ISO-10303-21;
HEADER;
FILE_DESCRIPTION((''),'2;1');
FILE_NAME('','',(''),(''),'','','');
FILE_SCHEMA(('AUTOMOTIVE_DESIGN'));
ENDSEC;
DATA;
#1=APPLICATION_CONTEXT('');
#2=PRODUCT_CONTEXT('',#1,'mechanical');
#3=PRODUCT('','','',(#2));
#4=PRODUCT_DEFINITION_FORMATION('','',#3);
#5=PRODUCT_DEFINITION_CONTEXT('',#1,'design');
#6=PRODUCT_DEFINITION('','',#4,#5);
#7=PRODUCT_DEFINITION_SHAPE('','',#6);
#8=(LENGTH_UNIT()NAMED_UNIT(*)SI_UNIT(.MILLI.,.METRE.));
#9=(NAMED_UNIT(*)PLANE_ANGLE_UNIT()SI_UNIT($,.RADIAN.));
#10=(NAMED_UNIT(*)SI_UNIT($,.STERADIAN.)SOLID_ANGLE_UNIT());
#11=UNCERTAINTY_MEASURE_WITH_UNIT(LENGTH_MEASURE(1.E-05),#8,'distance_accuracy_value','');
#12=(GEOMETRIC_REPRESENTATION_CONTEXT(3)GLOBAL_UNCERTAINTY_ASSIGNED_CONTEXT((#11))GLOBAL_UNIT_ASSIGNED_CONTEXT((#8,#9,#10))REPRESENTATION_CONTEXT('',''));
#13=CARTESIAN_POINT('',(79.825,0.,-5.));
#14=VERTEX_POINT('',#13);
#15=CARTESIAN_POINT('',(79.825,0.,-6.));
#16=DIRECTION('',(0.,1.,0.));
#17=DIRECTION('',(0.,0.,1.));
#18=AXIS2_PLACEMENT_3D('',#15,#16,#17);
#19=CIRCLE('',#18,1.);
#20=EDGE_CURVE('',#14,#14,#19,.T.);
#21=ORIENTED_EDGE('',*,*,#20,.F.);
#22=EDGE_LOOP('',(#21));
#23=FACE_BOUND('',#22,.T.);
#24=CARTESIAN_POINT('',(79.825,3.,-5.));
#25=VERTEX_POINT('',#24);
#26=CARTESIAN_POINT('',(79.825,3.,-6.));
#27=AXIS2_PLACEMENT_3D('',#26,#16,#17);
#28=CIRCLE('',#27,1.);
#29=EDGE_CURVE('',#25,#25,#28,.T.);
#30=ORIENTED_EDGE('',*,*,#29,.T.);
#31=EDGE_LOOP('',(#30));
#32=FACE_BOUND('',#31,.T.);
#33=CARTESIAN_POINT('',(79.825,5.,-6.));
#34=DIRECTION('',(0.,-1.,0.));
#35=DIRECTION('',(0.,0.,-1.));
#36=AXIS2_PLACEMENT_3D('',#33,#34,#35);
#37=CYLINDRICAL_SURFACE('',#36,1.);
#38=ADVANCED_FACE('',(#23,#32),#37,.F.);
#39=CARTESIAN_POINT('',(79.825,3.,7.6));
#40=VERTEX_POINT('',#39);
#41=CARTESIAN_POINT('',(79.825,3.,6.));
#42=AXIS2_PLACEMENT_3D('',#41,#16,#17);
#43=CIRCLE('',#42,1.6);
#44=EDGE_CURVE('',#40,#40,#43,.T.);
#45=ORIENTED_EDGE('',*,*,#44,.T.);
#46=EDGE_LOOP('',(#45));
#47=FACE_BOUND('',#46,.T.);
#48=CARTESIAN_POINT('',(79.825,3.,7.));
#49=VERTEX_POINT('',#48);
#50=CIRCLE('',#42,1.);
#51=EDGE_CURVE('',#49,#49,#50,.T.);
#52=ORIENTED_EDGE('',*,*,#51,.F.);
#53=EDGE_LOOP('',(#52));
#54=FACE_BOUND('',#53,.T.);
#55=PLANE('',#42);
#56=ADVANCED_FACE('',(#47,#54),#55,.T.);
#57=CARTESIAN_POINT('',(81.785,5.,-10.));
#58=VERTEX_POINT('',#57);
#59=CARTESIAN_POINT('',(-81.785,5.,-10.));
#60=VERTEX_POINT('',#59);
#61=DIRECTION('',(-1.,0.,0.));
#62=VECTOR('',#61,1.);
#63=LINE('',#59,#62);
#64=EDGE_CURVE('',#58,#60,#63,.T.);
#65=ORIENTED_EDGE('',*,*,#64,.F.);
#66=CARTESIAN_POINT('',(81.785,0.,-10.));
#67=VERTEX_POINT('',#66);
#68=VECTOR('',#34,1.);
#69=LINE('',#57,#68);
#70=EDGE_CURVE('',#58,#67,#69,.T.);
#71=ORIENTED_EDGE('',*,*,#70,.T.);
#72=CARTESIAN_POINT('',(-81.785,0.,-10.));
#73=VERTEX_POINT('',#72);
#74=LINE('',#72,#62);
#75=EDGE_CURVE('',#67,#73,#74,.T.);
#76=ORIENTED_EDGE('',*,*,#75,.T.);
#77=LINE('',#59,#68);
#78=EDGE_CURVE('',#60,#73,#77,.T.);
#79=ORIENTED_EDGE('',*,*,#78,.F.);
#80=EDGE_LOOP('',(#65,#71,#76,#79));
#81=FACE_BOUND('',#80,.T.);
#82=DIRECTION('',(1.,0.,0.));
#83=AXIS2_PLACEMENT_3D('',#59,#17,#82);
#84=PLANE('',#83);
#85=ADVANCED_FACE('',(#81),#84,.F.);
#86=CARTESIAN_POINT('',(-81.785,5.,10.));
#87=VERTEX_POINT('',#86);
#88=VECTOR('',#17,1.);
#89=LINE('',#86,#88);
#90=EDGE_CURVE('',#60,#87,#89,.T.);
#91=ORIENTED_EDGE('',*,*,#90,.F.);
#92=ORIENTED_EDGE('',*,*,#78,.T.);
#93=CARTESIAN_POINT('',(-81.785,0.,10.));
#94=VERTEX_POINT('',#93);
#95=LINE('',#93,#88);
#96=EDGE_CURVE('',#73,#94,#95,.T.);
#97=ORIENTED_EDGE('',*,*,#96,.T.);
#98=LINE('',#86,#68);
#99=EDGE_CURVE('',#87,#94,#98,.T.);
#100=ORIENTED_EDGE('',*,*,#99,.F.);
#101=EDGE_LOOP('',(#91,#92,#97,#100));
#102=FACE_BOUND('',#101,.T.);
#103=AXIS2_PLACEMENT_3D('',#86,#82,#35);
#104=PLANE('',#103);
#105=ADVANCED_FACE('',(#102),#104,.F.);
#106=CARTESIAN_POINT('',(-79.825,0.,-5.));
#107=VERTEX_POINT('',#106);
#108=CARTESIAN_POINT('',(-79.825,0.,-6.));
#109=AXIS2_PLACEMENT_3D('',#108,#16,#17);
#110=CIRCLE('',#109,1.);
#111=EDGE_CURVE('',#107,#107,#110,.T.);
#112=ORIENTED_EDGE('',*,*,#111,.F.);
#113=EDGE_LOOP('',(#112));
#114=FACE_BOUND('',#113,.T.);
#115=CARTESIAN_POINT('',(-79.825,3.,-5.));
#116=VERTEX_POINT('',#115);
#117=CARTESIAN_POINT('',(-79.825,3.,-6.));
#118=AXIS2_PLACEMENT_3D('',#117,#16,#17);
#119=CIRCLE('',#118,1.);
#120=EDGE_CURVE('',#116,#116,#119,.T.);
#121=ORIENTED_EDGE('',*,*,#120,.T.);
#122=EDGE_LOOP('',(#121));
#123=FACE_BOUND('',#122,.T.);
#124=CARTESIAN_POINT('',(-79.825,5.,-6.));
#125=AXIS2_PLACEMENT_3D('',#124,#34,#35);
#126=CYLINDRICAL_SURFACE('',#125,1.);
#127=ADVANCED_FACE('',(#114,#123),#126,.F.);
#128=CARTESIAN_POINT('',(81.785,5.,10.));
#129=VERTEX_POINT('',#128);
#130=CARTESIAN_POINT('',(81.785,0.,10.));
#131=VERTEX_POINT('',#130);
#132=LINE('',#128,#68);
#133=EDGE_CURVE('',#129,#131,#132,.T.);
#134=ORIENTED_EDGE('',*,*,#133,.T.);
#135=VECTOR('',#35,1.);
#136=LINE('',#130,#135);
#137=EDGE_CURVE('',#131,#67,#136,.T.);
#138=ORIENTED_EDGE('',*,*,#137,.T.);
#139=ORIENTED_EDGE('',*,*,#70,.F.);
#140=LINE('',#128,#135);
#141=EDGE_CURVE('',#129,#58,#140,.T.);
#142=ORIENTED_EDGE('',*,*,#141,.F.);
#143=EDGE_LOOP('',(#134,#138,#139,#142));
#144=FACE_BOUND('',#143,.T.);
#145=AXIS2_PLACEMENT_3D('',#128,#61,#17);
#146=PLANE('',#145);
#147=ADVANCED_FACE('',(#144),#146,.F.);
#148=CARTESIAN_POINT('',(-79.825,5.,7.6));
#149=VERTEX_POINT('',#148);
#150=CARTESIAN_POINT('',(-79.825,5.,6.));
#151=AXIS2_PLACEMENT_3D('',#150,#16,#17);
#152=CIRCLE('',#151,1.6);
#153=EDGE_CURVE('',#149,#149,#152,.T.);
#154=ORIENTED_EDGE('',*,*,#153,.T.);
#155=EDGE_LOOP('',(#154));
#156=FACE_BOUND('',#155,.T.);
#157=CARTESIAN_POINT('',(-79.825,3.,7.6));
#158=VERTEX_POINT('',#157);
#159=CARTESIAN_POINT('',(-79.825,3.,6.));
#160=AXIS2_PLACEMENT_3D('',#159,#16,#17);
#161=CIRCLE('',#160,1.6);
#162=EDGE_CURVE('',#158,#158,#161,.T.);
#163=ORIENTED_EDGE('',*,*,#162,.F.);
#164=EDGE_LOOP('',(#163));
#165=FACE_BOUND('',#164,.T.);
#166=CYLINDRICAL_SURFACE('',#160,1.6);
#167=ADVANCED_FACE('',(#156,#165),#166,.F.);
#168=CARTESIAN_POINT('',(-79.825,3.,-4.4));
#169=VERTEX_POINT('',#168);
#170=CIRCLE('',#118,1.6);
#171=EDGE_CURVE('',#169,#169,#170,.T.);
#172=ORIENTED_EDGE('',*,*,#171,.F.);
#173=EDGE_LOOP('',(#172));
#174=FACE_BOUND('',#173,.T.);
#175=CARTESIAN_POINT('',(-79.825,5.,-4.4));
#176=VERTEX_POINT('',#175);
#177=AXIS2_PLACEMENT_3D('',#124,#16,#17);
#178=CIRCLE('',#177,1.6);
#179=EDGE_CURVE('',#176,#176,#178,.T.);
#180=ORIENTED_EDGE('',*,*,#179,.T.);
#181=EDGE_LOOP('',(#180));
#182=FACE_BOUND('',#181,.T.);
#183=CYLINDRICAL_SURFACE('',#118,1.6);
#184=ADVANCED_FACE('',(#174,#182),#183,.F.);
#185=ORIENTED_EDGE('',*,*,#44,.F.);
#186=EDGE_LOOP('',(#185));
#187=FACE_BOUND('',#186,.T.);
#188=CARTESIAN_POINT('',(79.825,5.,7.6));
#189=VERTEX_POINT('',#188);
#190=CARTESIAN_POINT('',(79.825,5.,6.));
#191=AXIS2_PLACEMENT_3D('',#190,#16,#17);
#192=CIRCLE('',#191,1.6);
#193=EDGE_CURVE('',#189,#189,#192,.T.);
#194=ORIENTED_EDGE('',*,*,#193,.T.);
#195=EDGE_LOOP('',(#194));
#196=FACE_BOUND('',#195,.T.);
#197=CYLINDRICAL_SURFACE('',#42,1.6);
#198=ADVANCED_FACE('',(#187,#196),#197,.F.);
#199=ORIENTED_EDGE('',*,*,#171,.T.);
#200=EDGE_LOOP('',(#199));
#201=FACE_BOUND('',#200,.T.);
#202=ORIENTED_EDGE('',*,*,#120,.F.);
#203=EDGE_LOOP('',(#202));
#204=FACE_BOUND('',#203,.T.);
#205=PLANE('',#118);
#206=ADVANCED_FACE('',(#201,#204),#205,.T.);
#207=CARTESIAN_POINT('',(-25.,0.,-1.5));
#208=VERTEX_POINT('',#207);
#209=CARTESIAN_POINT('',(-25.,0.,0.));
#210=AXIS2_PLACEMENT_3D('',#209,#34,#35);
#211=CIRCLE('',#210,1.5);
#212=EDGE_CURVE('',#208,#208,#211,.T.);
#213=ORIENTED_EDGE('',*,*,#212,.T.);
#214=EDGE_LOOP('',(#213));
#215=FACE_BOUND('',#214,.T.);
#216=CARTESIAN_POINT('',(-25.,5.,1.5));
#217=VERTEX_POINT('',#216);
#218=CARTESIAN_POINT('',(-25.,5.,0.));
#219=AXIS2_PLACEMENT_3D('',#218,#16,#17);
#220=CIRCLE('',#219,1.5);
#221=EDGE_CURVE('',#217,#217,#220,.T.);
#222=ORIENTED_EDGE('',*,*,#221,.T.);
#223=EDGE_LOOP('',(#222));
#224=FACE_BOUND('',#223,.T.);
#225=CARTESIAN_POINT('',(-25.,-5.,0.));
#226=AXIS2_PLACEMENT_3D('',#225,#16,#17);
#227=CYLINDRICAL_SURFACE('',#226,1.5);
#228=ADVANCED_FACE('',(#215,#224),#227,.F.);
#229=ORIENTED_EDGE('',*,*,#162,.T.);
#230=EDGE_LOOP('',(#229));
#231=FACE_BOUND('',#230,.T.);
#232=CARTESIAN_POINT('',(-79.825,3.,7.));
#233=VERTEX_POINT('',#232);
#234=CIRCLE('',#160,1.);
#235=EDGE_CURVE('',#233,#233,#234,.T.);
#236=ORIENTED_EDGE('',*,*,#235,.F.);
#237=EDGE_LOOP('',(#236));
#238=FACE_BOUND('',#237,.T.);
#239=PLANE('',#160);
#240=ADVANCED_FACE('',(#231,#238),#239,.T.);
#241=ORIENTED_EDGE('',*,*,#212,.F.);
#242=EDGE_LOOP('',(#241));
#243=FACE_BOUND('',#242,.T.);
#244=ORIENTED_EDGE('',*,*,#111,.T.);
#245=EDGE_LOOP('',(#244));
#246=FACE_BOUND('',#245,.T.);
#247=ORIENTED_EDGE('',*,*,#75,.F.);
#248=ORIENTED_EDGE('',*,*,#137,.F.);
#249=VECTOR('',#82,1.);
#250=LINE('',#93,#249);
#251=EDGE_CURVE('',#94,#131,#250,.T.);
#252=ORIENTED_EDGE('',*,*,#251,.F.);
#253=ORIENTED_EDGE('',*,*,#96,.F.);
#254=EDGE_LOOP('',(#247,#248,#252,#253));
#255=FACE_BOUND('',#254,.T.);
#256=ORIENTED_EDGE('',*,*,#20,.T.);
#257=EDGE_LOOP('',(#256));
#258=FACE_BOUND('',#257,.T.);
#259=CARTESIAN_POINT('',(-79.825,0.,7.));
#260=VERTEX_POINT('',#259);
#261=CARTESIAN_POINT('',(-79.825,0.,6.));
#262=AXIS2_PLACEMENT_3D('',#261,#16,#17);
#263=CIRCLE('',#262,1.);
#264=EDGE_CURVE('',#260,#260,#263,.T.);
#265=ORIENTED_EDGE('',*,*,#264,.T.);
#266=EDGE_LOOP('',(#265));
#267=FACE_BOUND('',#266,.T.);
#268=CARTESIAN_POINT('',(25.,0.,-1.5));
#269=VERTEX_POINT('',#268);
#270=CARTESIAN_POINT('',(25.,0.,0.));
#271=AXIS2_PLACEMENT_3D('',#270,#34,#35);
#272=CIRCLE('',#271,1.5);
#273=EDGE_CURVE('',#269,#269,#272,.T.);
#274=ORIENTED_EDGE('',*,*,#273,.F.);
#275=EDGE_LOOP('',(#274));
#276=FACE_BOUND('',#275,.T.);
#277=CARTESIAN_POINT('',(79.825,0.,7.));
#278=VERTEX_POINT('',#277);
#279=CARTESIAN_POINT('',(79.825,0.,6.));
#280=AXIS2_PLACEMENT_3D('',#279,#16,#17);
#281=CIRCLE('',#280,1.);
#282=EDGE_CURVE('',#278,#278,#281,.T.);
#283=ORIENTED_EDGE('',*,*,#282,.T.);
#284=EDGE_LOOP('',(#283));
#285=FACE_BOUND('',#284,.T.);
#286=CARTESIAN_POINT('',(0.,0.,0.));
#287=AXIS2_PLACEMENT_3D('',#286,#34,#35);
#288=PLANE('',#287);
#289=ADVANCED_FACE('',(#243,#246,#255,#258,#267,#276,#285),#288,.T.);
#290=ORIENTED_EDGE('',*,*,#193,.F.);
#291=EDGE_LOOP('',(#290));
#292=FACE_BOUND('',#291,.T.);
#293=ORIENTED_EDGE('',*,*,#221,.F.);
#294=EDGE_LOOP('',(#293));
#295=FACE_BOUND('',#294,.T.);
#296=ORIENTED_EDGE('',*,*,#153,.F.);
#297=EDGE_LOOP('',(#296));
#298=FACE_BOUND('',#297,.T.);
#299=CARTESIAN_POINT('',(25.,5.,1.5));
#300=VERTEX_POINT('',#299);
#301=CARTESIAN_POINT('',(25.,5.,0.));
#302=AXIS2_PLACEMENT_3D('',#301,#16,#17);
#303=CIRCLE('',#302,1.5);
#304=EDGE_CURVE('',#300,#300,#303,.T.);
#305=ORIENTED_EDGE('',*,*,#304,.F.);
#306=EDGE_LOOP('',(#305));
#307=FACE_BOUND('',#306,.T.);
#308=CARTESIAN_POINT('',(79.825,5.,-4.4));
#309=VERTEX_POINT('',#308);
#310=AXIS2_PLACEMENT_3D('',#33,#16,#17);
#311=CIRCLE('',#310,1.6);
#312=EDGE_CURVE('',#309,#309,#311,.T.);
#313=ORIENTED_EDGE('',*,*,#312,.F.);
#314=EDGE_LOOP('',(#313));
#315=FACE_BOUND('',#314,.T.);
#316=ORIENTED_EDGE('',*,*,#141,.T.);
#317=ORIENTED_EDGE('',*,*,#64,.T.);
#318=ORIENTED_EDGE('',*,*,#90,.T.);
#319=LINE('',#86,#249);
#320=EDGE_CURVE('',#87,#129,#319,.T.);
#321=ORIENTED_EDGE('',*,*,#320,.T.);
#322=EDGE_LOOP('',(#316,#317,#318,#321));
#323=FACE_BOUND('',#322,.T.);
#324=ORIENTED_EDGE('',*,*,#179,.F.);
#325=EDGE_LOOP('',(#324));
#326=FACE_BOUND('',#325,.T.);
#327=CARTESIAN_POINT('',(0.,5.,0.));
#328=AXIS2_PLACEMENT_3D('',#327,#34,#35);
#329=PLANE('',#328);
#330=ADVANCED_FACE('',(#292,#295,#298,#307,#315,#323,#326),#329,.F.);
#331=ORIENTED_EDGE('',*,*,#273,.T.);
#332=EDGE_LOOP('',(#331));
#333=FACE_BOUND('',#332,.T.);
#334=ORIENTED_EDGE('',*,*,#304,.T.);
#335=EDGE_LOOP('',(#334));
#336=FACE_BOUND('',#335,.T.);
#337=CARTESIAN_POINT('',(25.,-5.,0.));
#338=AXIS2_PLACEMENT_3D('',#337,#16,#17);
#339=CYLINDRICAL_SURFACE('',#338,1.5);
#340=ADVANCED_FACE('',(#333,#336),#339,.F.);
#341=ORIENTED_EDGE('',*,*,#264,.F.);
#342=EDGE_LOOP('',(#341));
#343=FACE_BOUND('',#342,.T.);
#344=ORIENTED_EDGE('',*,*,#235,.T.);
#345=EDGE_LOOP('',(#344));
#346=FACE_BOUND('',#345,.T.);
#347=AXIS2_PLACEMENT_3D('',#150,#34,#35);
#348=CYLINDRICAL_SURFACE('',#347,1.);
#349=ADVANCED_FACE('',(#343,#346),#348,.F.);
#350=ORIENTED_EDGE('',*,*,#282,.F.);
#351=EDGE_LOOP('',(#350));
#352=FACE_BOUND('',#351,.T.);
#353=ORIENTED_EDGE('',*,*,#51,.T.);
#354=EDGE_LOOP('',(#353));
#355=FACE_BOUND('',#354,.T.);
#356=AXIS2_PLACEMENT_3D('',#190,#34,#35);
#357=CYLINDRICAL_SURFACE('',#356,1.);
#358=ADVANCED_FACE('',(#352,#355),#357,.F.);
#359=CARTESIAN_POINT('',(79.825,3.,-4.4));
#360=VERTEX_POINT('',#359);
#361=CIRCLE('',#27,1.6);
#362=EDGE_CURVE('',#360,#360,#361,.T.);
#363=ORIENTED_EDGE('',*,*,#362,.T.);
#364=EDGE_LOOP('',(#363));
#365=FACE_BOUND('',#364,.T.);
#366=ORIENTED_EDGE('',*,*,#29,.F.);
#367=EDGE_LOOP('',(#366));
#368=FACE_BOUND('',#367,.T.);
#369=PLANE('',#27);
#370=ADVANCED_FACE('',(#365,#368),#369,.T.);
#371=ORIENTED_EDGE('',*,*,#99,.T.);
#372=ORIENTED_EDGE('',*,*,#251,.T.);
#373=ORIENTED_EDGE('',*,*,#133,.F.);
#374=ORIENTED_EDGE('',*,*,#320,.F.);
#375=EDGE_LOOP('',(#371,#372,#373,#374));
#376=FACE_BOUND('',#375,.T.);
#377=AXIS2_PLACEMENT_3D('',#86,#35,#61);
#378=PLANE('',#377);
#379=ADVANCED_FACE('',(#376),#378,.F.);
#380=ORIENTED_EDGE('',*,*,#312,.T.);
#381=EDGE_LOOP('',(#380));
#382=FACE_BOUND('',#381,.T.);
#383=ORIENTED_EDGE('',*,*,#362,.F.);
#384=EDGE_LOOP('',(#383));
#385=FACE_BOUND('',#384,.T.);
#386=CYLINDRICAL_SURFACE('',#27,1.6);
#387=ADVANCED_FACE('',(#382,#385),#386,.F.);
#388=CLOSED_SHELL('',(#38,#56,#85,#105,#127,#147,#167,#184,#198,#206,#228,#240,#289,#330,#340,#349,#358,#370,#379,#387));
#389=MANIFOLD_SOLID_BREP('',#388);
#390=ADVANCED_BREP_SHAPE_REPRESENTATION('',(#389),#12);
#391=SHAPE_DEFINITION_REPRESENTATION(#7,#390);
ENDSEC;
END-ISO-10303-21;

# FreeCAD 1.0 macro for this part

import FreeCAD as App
import Part
import Sketcher

V = App.Vector
Q = App.Units.Quantity

doc = App.newDocument("Part")
body = doc.addObject("PartDesign::Body", "Body")

# Sketch on XZ plane
sketch1 = body.newObject("Sketcher::SketchObject", "Sketch")
sketch1.AttachmentSupport = (doc.getObject("XZ_Plane"), [""])
sketch1.MapMode = "FlatFace"
sketch1.addGeometry([
    Part.LineSegment(V(-81.8, -10, 0), V(-81.8, 10, 0)),  # 0
    Part.LineSegment(V(-81.8, 10, 0), V(81.8, 10, 0)),  # 1
    Part.LineSegment(V(81.8, 10, 0), V(81.8, -10, 0)),  # 2
    Part.LineSegment(V(81.8, -10, 0), V(-81.8, -10, 0)),  # 3
    Part.Circle(V(-79.8, 6, 0), V(0, 0, 1), 1),  # 4
    Part.Circle(V(79.8, 6, 0), V(0, 0, 1), 1),  # 5
    Part.Circle(V(-79.8, -6, 0), V(0, 0, 1), 1),  # 6
    Part.Circle(V(79.8, -6, 0), V(0, 0, 1), 1),  # 7
], False)
sketch1.addConstraint([
    Sketcher.Constraint("Coincident", 0, 2, 1, 1),
    Sketcher.Constraint("Coincident", 1, 2, 2, 1),
    Sketcher.Constraint("Coincident", 2, 2, 3, 1),
    Sketcher.Constraint("Coincident", 3, 2, 0, 1),
    Sketcher.Constraint("Vertical", 0),
    Sketcher.Constraint("Horizontal", 1),
    Sketcher.Constraint("Vertical", 2),
    Sketcher.Constraint("Horizontal", 3),
    Sketcher.Constraint("Equal", 4, 5),
    Sketcher.Constraint("Equal", 5, 6),
    Sketcher.Constraint("Equal", 6, 7),
    Sketcher.Constraint("Symmetric", 5, 3, 6, 3, -1, 1),
    Sketcher.Constraint("Symmetric", 4, 3, 7, 3, -1, 1),
    Sketcher.Constraint("Symmetric", 0, 2, 2, 2, -1, 1),
    Sketcher.Constraint("Symmetric", 4, 3, 5, 3, -2),
    Sketcher.Constraint("Diameter", 4, Q("2 mm")),
    Sketcher.Constraint("DistanceY", 0, 1, 0, 2, Q("20 mm")),
    Sketcher.Constraint("DistanceY", -1, 1, 4, 3, Q("6 mm")),
    Sketcher.Constraint("DistanceX", 1, 1, 1, 2, Q("163.57 mm")),
    Sketcher.Constraint("DistanceX", 4, 3, 5, 3, Q("159.65 mm")),
])
pad1 = body.newObject("PartDesign::Pad", "Pad")
pad1.Profile = sketch1
pad1.Length = 5
pad1.Reversed = True

# Sketch on XZ plane
sketch2 = body.newObject("Sketcher::SketchObject", "Sketch001")
sketch2.AttachmentSupport = (doc.getObject("XZ_Plane"), [""])
sketch2.MapMode = "FlatFace"
sketch2.AttachmentOffset = App.Placement(V(0, 0, -5), App.Rotation())
sketch2.addGeometry([
    Part.Circle(V(-79.8, -6, 0), V(0, 0, 1), 1.6),
    Part.Circle(V(-79.8, 6, 0), V(0, 0, 1), 1.6),
    Part.Circle(V(79.8, -6, 0), V(0, 0, 1), 1.6),
    Part.Circle(V(79.8, 6, 0), V(0, 0, 1), 1.6),
], False)
sketch2.addConstraint([
    Sketcher.Constraint("Equal", 0, 1),
    Sketcher.Constraint("Equal", 1, 2),
    Sketcher.Constraint("Equal", 2, 3),
    Sketcher.Constraint("Symmetric", 1, 3, 2, 3, -1, 1),
    Sketcher.Constraint("Symmetric", 0, 3, 3, 3, -1, 1),
    Sketcher.Constraint("Symmetric", 0, 3, 2, 3, -2),
    Sketcher.Constraint("Diameter", 0, Q("3.2 mm")),
    Sketcher.Constraint("DistanceY", 0, 3, -1, 1, Q("6 mm")),
    Sketcher.Constraint("DistanceX", 0, 3, 2, 3, Q("159.65 mm")),
])
pocket1 = body.newObject("PartDesign::Pocket", "Pocket")
pocket1.Profile = sketch2
pocket1.Length = 2
pocket1.Reversed = True

# Sketch on XZ plane
sketch3 = body.newObject("Sketcher::SketchObject", "Sketch002")
sketch3.AttachmentSupport = (doc.getObject("XZ_Plane"), [""])
sketch3.MapMode = "FlatFace"
sketch3.AttachmentOffset = App.Placement(V(0, 0, -5), App.Rotation())
sketch3.addGeometry([
    Part.Circle(V(-25, 0, 0), V(0, 0, 1), 1.5),
    Part.Circle(V(25, 0, 0), V(0, 0, 1), 1.5),
], False)
sketch3.addConstraint([
    Sketcher.Constraint("Equal", 0, 1),
    Sketcher.Constraint("Symmetric", 0, 3, 1, 3, -1, 1),
    Sketcher.Constraint("PointOnObject", 0, 3, -1),
    Sketcher.Constraint("Diameter", 0, Q("3 mm")),
    Sketcher.Constraint("DistanceX", 0, 3, -1, 1, Q("25 mm")),
])
pocket2 = body.newObject("PartDesign::Pocket", "Pocket001")
pocket2.Profile = sketch3
pocket2.Length = 10
pocket2.Reversed = True

doc.recompute()
